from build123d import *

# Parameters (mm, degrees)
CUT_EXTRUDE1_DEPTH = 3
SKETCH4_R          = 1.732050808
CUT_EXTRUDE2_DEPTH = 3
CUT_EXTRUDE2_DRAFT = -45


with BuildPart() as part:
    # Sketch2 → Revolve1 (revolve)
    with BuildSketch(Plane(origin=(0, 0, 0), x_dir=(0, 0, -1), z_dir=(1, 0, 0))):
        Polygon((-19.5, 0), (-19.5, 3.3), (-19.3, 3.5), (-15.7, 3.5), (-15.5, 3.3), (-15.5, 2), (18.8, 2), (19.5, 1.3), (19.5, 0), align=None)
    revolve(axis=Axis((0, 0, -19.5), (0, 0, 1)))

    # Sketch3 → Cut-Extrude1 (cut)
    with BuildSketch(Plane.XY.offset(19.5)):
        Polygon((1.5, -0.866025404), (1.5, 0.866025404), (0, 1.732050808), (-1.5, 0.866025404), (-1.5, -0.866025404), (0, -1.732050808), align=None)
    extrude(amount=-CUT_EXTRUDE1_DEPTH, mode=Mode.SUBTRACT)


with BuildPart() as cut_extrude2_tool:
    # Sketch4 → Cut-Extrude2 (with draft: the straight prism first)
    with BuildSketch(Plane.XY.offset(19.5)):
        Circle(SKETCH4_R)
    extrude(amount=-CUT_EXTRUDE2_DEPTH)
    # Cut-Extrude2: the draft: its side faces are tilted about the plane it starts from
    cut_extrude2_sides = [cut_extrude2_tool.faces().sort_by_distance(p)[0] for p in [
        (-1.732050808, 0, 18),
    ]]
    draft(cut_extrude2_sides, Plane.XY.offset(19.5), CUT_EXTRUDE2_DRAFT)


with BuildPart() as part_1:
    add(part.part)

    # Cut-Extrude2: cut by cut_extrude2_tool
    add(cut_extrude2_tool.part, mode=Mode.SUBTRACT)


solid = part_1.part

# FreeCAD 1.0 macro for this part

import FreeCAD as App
import Part
import Sketcher
from FreeCAD import Vector
Q = App.Units.Quantity


def faces_at(feature, points):
    """Names of the faces that lie closest to the given points."""
    faces = feature.Shape.Faces
    near = lambda p: min(range(len(faces)), key=lambda i: faces[i].distToShape(Part.Vertex(*p))[0])
    return sorted({f"Face{near(p) + 1}" for p in points})


def add_polygon(sketch, points):
    """Adds a closed chain of lines whose ends are joined by coincident constraints."""
    first, n = sketch.GeometryCount, len(points)
    for a, b in zip(points, points[1:] + points[:1]):
        sketch.addGeometry(Part.LineSegment(App.Vector(*a, 0), App.Vector(*b, 0)), False)
    for i in range(n):
        sketch.addConstraint(Sketcher.Constraint("Coincident", first + i, 2, first + (i + 1) % n, 1))

doc = App.newDocument("Part")
body = doc.addObject("PartDesign::Body", "Body")

# Sketch on YZ plane
sketch1 = body.newObject("Sketcher::SketchObject", "Sketch")
sketch1.AttachmentSupport = (doc.getObject("YZ_Plane"), [""])
sketch1.MapMode = "FlatFace"
add_polygon(sketch1, [(3.3, 19.5), (0, 19.5), (0, -19.5), (1.3, -19.5), (2, -18.8), (2, 15.5), (3.3, 15.5), (3.5, 15.7), (3.5, 19.3)])  # lines 0-8
sketch1.addConstraint([
    Sketcher.Constraint("Horizontal", 0),
    Sketcher.Constraint("Vertical", 1),
    Sketcher.Constraint("Horizontal", 2),
    Sketcher.Constraint("Vertical", 4),
    Sketcher.Constraint("Horizontal", 5),
    Sketcher.Constraint("Vertical", 7),
    Sketcher.Constraint("Symmetric", 0, 2, 1, 2, -1, 1),
    Sketcher.Constraint("Parallel", 3, 6),
    Sketcher.Constraint("Perpendicular", 6, 8),
    Sketcher.Constraint("Vertical", 5, 2, 8, 2),
    Sketcher.Constraint("Equal", 2, 5),
    Sketcher.Constraint("Equal", 6, 8),
    Sketcher.Constraint("DistanceY", 1, 2, 1, 1, 39.0),
    Sketcher.Constraint("DistanceX", 0, 2, 0, 1, 3.3),
    Sketcher.Constraint("DistanceX", 2, 1, 2, 2, 1.3),
    Sketcher.Constraint("DistanceY", 4, 1, 4, 2, 34.3),
    Sketcher.Constraint("DistanceY", 7, 1, 7, 2, 3.6),
])
revolution = body.newObject("PartDesign::Revolution", "Revolution")
revolution.Profile = sketch1
revolution.ReferenceAxis = (sketch1, ["V_Axis"])
revolution.Angle = 360

# Sketch on XY plane
sketch2 = body.newObject("Sketcher::SketchObject", "Sketch001")
sketch2.AttachmentSupport = (doc.getObject("XY_Plane"), [""])
sketch2.MapMode = "FlatFace"
sketch2.AttachmentOffset = App.Placement(Vector(0, 0, 19.5), App.Rotation())
add_polygon(sketch2, [(1.5, -0.9), (1.5, 0.9), (0, 1.7), (-1.5, 0.9), (-1.5, -0.9), (0, -1.7)])  # lines 0-5
sketch2.addConstraint([
    Sketcher.Constraint("Vertical", 0),
    Sketcher.Constraint("Vertical", 3),
    Sketcher.Constraint("Symmetric", 0, 2, 3, 2, -1, 1),
    Sketcher.Constraint("Symmetric", 1, 2, 4, 2, -1, 1),
    Sketcher.Constraint("PointOnObject", 1, 2, -2),
    Sketcher.Constraint("Parallel", 2, 5),
    Sketcher.Constraint("Horizontal", 0, 2, 2, 2),
    Sketcher.Constraint("Angle", 1, Q("150 deg")),
    Sketcher.Constraint("DistanceX", 2, 2, 0, 2, 3.0),
    Sketcher.Constraint("DistanceY", 0, 1, 0, 2, 1.732051),
])
pocket1 = body.newObject("PartDesign::Pocket", "Pocket")
pocket1.Profile = sketch2
pocket1.Length = 3
body2 = doc.addObject("PartDesign::Body", "Body001")

# Sketch on XY plane
sketch3 = body2.newObject("Sketcher::SketchObject", "Sketch002")
sketch3.AttachmentSupport = (doc.getObject("XY_Plane001"), [""])
sketch3.MapMode = "FlatFace"
sketch3.AttachmentOffset = App.Placement(Vector(0, 0, 19.5), App.Rotation())
sketch3.addGeometry(Part.Circle(Vector(0, 0, 0), Vector(0, 0, 1), 1.7), False)
sketch3.addConstraint([
    Sketcher.Constraint("Coincident", 0, 3, -1, 1),
    Sketcher.Constraint("Diameter", 0, 3.464102),
])
pad1 = body2.newObject("PartDesign::Pad", "Pad")
pad1.Profile = sketch3
pad1.Length = 3
pad1.Reversed = True
doc.recompute()

datumplane = body2.newObject("PartDesign::Plane", "DatumPlane")
datumplane.AttachmentSupport = (doc.getObject("XY_Plane001"), [""])
datumplane.MapMode = "FlatFace"
datumplane.AttachmentOffset = App.Placement(Vector(0, 0, 19.5), App.Rotation())
draft = body2.newObject("PartDesign::Draft", "Draft")
draft.Base = (pad1, faces_at(pad1, [(-1.732, 0, 18)]))
draft.NeutralPlane = (datumplane, [""])
draft.Angle = 45
draft.Reversed = True
doc.recompute()

boolean = body.newObject("PartDesign::Boolean", "Boolean")
boolean.Type = "Cut"
boolean.addObjects([body2])

doc.recompute()
